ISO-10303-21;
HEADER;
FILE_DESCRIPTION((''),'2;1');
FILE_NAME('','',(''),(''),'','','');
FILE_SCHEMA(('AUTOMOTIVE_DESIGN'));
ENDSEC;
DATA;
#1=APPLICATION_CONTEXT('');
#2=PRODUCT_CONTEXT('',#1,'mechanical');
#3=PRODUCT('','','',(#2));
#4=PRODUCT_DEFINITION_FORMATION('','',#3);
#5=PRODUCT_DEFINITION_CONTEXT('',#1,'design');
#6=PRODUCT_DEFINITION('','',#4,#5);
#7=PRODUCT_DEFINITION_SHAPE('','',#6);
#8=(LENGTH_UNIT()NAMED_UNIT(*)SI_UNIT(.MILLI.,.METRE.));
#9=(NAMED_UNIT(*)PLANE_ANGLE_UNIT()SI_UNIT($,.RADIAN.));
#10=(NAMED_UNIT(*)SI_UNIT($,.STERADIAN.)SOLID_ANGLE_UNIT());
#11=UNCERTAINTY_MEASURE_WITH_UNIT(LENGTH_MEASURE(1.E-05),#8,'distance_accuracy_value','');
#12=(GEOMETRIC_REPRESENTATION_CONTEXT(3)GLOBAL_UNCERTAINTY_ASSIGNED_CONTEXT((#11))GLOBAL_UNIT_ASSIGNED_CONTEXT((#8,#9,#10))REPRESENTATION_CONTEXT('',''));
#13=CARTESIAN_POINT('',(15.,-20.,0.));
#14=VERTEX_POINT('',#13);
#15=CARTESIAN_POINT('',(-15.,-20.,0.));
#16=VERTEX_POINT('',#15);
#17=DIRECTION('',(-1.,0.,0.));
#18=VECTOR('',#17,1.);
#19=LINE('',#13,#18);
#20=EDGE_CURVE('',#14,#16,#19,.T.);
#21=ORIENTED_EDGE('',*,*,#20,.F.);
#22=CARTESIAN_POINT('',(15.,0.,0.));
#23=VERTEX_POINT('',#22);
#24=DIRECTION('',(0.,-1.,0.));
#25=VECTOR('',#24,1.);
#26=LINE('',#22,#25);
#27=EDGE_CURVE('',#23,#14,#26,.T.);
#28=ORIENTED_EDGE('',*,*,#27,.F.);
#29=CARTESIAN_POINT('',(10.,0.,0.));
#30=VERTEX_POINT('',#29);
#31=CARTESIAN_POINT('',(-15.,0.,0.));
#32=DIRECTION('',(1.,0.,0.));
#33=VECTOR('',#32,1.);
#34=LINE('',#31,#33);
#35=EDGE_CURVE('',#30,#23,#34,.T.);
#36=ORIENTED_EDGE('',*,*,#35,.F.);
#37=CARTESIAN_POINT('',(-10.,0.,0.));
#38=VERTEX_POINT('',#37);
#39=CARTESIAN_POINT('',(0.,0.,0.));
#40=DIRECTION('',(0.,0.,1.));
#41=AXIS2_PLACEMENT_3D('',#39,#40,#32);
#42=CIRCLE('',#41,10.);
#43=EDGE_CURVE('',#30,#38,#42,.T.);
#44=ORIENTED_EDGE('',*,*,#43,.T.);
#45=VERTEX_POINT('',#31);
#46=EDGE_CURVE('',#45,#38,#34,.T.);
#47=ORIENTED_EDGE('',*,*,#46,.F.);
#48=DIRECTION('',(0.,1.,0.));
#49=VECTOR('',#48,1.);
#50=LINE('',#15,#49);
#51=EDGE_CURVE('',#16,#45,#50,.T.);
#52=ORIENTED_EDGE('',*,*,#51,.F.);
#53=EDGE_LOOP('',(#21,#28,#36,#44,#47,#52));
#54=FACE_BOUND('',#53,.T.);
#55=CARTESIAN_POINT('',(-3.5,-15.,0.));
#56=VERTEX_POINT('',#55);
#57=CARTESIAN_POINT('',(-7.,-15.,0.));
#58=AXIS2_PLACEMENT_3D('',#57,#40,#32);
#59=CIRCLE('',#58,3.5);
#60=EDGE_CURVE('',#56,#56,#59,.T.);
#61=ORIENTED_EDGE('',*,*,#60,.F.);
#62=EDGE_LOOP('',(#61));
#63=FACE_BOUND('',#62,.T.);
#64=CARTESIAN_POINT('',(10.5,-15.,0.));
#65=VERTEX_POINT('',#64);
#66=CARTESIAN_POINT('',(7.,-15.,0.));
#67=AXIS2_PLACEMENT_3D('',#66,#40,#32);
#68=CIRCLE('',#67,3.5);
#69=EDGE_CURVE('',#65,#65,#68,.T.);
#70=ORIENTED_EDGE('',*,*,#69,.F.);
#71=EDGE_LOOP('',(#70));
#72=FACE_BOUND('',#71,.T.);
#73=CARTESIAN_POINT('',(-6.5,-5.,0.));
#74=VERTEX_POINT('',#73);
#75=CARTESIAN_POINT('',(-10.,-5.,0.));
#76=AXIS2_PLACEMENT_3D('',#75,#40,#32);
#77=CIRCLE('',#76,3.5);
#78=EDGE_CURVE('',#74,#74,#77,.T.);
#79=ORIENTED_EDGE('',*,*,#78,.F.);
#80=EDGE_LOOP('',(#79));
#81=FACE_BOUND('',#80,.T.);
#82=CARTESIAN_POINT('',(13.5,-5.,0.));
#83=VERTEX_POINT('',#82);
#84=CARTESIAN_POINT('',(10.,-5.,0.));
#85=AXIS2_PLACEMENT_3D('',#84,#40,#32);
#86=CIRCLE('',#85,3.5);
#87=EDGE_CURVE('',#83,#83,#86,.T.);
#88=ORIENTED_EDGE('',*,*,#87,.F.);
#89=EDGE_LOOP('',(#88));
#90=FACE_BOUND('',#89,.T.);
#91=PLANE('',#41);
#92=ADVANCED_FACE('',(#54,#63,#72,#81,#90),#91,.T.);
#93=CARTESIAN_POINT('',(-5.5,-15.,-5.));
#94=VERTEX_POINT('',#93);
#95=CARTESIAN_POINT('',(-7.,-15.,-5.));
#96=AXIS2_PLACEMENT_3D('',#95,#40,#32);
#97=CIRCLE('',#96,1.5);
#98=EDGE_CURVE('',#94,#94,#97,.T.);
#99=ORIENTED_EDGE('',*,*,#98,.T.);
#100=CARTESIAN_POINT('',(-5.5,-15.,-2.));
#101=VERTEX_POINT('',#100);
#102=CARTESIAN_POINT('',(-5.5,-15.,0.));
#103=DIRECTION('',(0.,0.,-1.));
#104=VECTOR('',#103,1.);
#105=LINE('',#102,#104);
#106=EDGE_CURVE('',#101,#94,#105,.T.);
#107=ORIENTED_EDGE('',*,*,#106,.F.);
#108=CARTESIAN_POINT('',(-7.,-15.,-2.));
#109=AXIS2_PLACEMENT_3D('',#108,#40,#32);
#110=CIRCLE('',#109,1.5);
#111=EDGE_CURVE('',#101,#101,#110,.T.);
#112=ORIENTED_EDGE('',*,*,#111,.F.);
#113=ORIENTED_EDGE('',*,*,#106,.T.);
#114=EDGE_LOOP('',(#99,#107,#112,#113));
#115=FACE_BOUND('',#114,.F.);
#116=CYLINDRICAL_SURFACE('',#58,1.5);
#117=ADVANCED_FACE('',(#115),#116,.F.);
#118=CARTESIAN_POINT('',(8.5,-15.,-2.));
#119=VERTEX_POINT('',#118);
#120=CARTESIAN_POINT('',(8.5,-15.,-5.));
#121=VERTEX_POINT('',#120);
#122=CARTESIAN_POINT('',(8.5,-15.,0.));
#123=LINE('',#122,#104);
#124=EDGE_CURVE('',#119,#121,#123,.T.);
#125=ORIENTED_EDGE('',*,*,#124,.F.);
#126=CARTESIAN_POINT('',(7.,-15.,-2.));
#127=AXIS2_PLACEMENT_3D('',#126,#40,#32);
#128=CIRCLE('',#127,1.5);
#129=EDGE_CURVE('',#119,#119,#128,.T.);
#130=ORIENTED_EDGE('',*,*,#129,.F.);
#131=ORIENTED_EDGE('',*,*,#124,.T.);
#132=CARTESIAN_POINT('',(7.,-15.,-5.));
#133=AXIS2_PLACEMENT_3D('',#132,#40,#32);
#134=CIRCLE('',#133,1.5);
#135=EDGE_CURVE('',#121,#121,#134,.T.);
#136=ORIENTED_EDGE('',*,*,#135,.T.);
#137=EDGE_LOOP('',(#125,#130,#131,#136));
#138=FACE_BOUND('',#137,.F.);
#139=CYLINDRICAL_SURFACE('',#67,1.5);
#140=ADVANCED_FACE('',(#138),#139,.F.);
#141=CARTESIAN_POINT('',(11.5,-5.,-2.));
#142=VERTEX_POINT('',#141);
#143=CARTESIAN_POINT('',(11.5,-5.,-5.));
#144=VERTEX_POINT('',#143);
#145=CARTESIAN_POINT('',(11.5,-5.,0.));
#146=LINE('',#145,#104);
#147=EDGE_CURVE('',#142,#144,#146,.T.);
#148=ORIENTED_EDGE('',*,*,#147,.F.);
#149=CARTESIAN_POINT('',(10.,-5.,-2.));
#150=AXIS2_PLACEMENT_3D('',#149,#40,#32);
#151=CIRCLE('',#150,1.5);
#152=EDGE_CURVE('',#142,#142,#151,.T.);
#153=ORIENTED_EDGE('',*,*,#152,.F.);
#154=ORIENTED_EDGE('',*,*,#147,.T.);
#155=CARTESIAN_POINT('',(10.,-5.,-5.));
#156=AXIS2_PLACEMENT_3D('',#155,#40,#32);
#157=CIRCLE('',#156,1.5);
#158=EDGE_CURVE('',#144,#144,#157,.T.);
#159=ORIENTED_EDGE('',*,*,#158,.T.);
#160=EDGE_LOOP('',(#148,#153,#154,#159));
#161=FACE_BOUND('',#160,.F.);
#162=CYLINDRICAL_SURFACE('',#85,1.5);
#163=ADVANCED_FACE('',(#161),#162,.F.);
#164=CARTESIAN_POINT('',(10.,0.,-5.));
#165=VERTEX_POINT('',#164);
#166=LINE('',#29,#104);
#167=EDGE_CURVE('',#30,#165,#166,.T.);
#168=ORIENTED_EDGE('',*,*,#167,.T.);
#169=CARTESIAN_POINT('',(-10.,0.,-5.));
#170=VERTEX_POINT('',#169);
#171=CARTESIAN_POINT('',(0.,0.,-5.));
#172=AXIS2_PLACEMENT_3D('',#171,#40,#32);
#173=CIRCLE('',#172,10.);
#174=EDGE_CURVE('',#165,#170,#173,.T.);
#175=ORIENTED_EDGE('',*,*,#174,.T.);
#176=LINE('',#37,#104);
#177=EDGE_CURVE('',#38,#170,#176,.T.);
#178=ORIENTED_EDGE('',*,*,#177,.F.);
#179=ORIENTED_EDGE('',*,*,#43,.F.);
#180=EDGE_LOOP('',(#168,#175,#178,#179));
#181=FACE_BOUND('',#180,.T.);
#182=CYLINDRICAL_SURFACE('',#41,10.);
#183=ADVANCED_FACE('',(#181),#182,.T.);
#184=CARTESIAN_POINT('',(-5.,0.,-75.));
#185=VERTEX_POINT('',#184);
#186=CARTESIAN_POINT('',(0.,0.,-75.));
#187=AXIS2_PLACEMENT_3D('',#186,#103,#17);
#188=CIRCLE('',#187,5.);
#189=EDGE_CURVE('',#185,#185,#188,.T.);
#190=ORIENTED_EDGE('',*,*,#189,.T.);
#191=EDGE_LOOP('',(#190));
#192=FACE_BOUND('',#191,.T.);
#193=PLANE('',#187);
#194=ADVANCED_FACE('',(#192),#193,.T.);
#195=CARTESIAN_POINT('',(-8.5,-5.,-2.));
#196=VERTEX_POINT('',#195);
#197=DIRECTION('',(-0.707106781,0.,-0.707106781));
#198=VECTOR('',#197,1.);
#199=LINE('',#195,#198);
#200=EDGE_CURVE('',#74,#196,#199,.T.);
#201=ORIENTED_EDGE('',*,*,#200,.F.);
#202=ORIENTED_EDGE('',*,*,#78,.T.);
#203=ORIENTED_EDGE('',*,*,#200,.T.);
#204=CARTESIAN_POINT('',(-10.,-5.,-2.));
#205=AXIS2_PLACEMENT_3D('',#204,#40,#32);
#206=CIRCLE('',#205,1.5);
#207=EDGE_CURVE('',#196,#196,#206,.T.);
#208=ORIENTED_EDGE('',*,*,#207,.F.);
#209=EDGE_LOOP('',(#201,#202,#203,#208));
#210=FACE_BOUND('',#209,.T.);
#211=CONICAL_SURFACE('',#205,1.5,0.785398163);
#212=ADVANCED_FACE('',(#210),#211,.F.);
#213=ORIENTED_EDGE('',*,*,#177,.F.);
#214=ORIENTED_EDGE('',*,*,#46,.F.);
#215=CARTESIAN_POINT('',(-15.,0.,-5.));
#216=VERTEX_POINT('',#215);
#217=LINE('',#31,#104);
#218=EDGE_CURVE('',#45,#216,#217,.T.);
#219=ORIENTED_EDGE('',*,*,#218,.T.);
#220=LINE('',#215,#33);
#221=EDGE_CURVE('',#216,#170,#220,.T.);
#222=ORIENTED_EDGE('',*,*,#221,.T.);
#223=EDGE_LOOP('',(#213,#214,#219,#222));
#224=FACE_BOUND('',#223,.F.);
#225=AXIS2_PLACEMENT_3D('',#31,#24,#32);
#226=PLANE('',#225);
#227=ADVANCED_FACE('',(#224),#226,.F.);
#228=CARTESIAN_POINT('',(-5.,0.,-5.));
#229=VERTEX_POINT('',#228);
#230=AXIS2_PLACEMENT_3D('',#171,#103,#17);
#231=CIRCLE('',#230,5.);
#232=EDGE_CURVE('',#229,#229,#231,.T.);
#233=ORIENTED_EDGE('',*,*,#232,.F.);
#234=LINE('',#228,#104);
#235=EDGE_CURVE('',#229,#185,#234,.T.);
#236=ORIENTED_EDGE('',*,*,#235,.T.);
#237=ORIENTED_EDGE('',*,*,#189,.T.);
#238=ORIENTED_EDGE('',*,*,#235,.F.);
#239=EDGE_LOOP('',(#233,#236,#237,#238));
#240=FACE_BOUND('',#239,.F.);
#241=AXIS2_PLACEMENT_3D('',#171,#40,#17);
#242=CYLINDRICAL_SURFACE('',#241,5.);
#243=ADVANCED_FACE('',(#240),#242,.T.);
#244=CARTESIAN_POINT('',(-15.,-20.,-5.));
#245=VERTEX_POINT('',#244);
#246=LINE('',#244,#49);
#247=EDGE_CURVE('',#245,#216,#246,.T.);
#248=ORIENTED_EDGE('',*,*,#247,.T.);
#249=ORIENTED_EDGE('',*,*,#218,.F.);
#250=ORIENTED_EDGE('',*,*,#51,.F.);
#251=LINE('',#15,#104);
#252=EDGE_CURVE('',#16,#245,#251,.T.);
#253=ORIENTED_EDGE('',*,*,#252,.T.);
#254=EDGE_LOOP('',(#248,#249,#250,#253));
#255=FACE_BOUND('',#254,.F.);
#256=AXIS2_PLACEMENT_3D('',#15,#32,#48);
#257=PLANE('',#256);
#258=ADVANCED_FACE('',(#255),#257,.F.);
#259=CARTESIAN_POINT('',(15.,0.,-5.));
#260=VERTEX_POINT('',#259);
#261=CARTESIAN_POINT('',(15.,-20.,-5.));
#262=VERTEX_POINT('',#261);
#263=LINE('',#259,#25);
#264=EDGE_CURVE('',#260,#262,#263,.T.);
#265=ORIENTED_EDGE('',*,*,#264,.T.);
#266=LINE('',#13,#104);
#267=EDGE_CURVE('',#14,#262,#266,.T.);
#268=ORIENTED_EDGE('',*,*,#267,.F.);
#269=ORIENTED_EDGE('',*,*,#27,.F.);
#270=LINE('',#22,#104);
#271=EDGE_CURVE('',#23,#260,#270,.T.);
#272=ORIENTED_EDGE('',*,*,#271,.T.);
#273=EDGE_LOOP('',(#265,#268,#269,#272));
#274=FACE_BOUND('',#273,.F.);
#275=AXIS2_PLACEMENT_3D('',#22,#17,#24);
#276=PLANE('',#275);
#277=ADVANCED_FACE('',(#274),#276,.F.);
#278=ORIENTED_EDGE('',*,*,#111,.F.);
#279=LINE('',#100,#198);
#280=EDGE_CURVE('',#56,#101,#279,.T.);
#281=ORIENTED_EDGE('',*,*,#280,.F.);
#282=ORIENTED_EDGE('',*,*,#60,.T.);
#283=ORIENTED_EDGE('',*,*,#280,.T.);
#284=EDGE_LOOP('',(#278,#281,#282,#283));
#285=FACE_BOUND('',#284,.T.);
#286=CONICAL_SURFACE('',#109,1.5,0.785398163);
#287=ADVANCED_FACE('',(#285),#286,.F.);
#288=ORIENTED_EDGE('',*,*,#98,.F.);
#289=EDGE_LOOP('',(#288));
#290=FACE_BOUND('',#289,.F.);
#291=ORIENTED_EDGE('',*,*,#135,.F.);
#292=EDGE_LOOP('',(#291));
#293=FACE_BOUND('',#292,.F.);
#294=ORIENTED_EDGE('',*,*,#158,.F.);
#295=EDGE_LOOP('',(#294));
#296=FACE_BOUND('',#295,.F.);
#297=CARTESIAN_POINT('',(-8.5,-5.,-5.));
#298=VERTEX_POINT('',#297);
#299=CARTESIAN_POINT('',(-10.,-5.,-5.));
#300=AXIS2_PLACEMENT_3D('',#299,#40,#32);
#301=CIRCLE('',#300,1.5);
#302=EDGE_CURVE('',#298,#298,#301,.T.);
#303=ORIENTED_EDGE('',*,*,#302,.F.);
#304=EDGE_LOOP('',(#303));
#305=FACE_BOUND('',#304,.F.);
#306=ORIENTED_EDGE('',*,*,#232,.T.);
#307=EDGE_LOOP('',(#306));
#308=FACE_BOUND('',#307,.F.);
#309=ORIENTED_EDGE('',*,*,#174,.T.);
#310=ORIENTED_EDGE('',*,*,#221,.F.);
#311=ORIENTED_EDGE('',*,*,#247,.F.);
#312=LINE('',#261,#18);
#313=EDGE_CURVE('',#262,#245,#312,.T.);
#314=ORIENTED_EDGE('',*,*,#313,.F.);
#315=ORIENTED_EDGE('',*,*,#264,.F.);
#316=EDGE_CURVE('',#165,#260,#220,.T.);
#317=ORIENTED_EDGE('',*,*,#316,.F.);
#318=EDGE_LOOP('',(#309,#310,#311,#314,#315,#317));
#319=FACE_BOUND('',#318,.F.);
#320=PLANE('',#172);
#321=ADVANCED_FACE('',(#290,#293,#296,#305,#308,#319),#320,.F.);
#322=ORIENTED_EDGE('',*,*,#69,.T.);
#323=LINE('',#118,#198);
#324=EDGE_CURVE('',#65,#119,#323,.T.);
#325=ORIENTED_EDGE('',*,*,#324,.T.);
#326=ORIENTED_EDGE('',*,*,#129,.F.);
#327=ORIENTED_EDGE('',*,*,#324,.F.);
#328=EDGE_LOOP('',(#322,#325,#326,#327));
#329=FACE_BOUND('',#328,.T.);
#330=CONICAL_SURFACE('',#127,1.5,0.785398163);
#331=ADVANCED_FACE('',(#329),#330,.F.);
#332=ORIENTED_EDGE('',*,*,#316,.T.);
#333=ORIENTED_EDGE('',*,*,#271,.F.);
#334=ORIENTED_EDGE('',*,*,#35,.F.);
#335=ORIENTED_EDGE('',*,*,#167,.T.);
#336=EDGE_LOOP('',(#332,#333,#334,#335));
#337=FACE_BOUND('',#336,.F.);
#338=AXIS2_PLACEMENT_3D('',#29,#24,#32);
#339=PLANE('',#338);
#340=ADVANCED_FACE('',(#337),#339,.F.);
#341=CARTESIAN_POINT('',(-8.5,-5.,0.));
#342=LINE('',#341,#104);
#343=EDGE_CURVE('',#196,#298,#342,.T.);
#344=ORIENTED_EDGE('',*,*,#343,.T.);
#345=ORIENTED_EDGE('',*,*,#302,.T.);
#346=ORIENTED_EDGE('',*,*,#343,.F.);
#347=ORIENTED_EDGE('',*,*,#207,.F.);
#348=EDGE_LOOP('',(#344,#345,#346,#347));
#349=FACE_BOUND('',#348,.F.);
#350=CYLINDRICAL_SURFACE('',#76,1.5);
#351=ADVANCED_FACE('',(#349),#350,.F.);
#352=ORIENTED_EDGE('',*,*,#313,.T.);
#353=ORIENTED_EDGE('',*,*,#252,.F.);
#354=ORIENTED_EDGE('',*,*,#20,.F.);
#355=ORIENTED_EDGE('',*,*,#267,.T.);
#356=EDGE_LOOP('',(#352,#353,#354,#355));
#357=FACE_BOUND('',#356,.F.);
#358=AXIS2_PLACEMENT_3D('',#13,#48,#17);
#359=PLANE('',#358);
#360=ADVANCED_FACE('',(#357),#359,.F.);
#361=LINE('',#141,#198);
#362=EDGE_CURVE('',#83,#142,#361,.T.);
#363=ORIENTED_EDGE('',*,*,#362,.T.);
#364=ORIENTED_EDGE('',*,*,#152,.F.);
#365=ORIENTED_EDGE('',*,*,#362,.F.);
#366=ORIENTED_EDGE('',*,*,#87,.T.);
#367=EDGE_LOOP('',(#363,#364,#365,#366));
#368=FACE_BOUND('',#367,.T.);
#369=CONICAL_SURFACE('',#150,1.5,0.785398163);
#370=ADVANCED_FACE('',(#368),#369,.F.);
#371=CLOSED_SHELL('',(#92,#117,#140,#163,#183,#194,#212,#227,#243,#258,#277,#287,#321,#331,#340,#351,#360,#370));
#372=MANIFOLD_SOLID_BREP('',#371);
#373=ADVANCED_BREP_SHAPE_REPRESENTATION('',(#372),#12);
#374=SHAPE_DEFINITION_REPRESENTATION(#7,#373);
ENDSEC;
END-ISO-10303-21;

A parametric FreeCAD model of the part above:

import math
import FreeCAD as App
import Part
import Sketcher

V = App.Vector


def edges_at(feature, points):
    """Names of the edges that pass closest to the given points."""
    edges = feature.Shape.Edges
    near = lambda p: min(range(len(edges)), key=lambda i: edges[i].distToShape(Part.Vertex(*p))[0])
    return sorted({f"Edge{near(p) + 1}" for p in points})

doc = App.newDocument("Part")
body = doc.addObject("PartDesign::Body", "Body")

# Sketch on XY plane
sketch1 = body.newObject("Sketcher::SketchObject", "Sketch")
sketch1.AttachmentSupport = (doc.getObject("XY_Plane"), [""])
sketch1.MapMode = "FlatFace"
sketch1.addGeometry([
    Part.ArcOfCircle(Part.Circle(V(0, 0, 0), V(0, 0, 1), 10), math.radians(0), math.radians(180)),  # 0
    Part.LineSegment(V(-10, 0, 0), V(-15, 0, 0)),  # 1
    Part.LineSegment(V(-15, 0, 0), V(-15, -20, 0)),  # 2
    Part.LineSegment(V(-15, -20, 0), V(15, -20, 0)),  # 3
    Part.LineSegment(V(15, -20, 0), V(15, 0, 0)),  # 4
    Part.LineSegment(V(15, 0, 0), V(10, 0, 0)),  # 5
    Part.Circle(V(10, -5, 0), V(0, 0, 1), 1.5),  # 6
    Part.Circle(V(-7, -15, 0), V(0, 0, 1), 1.5),  # 7
    Part.Circle(V(7, -15, 0), V(0, 0, 1), 1.5),  # 8
    Part.Circle(V(-10, -5, 0), V(0, 0, 1), 1.5),  # 9
], False)
sketch1.addConstraint([
    Sketcher.Constraint("Coincident", 0, 2, 1, 1),
    Sketcher.Constraint("Coincident", 1, 2, 2, 1),
    Sketcher.Constraint("Coincident", 2, 2, 3, 1),
    Sketcher.Constraint("Coincident", 3, 2, 4, 1),
    Sketcher.Constraint("Coincident", 4, 2, 5, 1),
    Sketcher.Constraint("Coincident", 5, 2, 0, 1),
    Sketcher.Constraint("Horizontal", 1),
    Sketcher.Constraint("Vertical", 2),
    Sketcher.Constraint("Horizontal", 3),
    Sketcher.Constraint("Vertical", 4),
    Sketcher.Constraint("Horizontal", 5),
    Sketcher.Constraint("Coincident", 0, 3, -1, 1),
    Sketcher.Constraint("Equal", 6, 7),
    Sketcher.Constraint("Equal", 7, 8),
    Sketcher.Constraint("Equal", 8, 9),
    Sketcher.Constraint("Symmetric", 1, 2, 4, 2, -1, 1),
    Sketcher.Constraint("Symmetric", 7, 3, 8, 3, -2),
    Sketcher.Constraint("Symmetric", 6, 3, 9, 3, -2),
    Sketcher.Constraint("PointOnObject", 0, 2, -1),
    Sketcher.Constraint("Vertical", 9, 3, 0, 2),
    Sketcher.Constraint("Diameter", 6, 3.0),
    Sketcher.Constraint("Radius", 0, 10.0),
    Sketcher.Constraint("DistanceX", 1, 2, 1, 1, 5.0),
    Sketcher.Constraint("DistanceY", 2, 2, 2, 1, 20.0),
    Sketcher.Constraint("DistanceY", 6, 3, -1, 1, 5.0),
    Sketcher.Constraint("DistanceX", 8, 3, 6, 3, 3.0),
    Sketcher.Constraint("DistanceY", 2, 2, 7, 3, 5.0),
])
pad1 = body.newObject("PartDesign::Pad", "Pad")
pad1.Profile = sketch1
pad1.Length = 5
pad1.Reversed = True

# Sketch on XY plane
sketch2 = body.newObject("Sketcher::SketchObject", "Sketch001")
sketch2.AttachmentSupport = (doc.getObject("XY_Plane"), [""])
sketch2.MapMode = "FlatFace"
sketch2.AttachmentOffset = App.Placement(V(0, 0, -5), App.Rotation())
sketch2.addGeometry(Part.Circle(V(0, 0, 0), V(0, 0, 1), 5), False)
sketch2.addConstraint([
    Sketcher.Constraint("Coincident", 0, 3, -1, 1),
    Sketcher.Constraint("Diameter", 0, 10.0),
])
pad2 = body.newObject("PartDesign::Pad", "Pad001")
pad2.Profile = sketch2
pad2.Length = 70
pad2.Reversed = True
doc.recompute()

chamfer = body.newObject("PartDesign::Chamfer", "Chamfer")
chamfer.Base = (pad2, edges_at(pad2, [
    (-11.5, -5, 0),
    (-8.5, -15, 0),
    (5.5, -15, 0),
    (8.5, -5, 0),
]))
chamfer.Size = 2

doc.recompute()
